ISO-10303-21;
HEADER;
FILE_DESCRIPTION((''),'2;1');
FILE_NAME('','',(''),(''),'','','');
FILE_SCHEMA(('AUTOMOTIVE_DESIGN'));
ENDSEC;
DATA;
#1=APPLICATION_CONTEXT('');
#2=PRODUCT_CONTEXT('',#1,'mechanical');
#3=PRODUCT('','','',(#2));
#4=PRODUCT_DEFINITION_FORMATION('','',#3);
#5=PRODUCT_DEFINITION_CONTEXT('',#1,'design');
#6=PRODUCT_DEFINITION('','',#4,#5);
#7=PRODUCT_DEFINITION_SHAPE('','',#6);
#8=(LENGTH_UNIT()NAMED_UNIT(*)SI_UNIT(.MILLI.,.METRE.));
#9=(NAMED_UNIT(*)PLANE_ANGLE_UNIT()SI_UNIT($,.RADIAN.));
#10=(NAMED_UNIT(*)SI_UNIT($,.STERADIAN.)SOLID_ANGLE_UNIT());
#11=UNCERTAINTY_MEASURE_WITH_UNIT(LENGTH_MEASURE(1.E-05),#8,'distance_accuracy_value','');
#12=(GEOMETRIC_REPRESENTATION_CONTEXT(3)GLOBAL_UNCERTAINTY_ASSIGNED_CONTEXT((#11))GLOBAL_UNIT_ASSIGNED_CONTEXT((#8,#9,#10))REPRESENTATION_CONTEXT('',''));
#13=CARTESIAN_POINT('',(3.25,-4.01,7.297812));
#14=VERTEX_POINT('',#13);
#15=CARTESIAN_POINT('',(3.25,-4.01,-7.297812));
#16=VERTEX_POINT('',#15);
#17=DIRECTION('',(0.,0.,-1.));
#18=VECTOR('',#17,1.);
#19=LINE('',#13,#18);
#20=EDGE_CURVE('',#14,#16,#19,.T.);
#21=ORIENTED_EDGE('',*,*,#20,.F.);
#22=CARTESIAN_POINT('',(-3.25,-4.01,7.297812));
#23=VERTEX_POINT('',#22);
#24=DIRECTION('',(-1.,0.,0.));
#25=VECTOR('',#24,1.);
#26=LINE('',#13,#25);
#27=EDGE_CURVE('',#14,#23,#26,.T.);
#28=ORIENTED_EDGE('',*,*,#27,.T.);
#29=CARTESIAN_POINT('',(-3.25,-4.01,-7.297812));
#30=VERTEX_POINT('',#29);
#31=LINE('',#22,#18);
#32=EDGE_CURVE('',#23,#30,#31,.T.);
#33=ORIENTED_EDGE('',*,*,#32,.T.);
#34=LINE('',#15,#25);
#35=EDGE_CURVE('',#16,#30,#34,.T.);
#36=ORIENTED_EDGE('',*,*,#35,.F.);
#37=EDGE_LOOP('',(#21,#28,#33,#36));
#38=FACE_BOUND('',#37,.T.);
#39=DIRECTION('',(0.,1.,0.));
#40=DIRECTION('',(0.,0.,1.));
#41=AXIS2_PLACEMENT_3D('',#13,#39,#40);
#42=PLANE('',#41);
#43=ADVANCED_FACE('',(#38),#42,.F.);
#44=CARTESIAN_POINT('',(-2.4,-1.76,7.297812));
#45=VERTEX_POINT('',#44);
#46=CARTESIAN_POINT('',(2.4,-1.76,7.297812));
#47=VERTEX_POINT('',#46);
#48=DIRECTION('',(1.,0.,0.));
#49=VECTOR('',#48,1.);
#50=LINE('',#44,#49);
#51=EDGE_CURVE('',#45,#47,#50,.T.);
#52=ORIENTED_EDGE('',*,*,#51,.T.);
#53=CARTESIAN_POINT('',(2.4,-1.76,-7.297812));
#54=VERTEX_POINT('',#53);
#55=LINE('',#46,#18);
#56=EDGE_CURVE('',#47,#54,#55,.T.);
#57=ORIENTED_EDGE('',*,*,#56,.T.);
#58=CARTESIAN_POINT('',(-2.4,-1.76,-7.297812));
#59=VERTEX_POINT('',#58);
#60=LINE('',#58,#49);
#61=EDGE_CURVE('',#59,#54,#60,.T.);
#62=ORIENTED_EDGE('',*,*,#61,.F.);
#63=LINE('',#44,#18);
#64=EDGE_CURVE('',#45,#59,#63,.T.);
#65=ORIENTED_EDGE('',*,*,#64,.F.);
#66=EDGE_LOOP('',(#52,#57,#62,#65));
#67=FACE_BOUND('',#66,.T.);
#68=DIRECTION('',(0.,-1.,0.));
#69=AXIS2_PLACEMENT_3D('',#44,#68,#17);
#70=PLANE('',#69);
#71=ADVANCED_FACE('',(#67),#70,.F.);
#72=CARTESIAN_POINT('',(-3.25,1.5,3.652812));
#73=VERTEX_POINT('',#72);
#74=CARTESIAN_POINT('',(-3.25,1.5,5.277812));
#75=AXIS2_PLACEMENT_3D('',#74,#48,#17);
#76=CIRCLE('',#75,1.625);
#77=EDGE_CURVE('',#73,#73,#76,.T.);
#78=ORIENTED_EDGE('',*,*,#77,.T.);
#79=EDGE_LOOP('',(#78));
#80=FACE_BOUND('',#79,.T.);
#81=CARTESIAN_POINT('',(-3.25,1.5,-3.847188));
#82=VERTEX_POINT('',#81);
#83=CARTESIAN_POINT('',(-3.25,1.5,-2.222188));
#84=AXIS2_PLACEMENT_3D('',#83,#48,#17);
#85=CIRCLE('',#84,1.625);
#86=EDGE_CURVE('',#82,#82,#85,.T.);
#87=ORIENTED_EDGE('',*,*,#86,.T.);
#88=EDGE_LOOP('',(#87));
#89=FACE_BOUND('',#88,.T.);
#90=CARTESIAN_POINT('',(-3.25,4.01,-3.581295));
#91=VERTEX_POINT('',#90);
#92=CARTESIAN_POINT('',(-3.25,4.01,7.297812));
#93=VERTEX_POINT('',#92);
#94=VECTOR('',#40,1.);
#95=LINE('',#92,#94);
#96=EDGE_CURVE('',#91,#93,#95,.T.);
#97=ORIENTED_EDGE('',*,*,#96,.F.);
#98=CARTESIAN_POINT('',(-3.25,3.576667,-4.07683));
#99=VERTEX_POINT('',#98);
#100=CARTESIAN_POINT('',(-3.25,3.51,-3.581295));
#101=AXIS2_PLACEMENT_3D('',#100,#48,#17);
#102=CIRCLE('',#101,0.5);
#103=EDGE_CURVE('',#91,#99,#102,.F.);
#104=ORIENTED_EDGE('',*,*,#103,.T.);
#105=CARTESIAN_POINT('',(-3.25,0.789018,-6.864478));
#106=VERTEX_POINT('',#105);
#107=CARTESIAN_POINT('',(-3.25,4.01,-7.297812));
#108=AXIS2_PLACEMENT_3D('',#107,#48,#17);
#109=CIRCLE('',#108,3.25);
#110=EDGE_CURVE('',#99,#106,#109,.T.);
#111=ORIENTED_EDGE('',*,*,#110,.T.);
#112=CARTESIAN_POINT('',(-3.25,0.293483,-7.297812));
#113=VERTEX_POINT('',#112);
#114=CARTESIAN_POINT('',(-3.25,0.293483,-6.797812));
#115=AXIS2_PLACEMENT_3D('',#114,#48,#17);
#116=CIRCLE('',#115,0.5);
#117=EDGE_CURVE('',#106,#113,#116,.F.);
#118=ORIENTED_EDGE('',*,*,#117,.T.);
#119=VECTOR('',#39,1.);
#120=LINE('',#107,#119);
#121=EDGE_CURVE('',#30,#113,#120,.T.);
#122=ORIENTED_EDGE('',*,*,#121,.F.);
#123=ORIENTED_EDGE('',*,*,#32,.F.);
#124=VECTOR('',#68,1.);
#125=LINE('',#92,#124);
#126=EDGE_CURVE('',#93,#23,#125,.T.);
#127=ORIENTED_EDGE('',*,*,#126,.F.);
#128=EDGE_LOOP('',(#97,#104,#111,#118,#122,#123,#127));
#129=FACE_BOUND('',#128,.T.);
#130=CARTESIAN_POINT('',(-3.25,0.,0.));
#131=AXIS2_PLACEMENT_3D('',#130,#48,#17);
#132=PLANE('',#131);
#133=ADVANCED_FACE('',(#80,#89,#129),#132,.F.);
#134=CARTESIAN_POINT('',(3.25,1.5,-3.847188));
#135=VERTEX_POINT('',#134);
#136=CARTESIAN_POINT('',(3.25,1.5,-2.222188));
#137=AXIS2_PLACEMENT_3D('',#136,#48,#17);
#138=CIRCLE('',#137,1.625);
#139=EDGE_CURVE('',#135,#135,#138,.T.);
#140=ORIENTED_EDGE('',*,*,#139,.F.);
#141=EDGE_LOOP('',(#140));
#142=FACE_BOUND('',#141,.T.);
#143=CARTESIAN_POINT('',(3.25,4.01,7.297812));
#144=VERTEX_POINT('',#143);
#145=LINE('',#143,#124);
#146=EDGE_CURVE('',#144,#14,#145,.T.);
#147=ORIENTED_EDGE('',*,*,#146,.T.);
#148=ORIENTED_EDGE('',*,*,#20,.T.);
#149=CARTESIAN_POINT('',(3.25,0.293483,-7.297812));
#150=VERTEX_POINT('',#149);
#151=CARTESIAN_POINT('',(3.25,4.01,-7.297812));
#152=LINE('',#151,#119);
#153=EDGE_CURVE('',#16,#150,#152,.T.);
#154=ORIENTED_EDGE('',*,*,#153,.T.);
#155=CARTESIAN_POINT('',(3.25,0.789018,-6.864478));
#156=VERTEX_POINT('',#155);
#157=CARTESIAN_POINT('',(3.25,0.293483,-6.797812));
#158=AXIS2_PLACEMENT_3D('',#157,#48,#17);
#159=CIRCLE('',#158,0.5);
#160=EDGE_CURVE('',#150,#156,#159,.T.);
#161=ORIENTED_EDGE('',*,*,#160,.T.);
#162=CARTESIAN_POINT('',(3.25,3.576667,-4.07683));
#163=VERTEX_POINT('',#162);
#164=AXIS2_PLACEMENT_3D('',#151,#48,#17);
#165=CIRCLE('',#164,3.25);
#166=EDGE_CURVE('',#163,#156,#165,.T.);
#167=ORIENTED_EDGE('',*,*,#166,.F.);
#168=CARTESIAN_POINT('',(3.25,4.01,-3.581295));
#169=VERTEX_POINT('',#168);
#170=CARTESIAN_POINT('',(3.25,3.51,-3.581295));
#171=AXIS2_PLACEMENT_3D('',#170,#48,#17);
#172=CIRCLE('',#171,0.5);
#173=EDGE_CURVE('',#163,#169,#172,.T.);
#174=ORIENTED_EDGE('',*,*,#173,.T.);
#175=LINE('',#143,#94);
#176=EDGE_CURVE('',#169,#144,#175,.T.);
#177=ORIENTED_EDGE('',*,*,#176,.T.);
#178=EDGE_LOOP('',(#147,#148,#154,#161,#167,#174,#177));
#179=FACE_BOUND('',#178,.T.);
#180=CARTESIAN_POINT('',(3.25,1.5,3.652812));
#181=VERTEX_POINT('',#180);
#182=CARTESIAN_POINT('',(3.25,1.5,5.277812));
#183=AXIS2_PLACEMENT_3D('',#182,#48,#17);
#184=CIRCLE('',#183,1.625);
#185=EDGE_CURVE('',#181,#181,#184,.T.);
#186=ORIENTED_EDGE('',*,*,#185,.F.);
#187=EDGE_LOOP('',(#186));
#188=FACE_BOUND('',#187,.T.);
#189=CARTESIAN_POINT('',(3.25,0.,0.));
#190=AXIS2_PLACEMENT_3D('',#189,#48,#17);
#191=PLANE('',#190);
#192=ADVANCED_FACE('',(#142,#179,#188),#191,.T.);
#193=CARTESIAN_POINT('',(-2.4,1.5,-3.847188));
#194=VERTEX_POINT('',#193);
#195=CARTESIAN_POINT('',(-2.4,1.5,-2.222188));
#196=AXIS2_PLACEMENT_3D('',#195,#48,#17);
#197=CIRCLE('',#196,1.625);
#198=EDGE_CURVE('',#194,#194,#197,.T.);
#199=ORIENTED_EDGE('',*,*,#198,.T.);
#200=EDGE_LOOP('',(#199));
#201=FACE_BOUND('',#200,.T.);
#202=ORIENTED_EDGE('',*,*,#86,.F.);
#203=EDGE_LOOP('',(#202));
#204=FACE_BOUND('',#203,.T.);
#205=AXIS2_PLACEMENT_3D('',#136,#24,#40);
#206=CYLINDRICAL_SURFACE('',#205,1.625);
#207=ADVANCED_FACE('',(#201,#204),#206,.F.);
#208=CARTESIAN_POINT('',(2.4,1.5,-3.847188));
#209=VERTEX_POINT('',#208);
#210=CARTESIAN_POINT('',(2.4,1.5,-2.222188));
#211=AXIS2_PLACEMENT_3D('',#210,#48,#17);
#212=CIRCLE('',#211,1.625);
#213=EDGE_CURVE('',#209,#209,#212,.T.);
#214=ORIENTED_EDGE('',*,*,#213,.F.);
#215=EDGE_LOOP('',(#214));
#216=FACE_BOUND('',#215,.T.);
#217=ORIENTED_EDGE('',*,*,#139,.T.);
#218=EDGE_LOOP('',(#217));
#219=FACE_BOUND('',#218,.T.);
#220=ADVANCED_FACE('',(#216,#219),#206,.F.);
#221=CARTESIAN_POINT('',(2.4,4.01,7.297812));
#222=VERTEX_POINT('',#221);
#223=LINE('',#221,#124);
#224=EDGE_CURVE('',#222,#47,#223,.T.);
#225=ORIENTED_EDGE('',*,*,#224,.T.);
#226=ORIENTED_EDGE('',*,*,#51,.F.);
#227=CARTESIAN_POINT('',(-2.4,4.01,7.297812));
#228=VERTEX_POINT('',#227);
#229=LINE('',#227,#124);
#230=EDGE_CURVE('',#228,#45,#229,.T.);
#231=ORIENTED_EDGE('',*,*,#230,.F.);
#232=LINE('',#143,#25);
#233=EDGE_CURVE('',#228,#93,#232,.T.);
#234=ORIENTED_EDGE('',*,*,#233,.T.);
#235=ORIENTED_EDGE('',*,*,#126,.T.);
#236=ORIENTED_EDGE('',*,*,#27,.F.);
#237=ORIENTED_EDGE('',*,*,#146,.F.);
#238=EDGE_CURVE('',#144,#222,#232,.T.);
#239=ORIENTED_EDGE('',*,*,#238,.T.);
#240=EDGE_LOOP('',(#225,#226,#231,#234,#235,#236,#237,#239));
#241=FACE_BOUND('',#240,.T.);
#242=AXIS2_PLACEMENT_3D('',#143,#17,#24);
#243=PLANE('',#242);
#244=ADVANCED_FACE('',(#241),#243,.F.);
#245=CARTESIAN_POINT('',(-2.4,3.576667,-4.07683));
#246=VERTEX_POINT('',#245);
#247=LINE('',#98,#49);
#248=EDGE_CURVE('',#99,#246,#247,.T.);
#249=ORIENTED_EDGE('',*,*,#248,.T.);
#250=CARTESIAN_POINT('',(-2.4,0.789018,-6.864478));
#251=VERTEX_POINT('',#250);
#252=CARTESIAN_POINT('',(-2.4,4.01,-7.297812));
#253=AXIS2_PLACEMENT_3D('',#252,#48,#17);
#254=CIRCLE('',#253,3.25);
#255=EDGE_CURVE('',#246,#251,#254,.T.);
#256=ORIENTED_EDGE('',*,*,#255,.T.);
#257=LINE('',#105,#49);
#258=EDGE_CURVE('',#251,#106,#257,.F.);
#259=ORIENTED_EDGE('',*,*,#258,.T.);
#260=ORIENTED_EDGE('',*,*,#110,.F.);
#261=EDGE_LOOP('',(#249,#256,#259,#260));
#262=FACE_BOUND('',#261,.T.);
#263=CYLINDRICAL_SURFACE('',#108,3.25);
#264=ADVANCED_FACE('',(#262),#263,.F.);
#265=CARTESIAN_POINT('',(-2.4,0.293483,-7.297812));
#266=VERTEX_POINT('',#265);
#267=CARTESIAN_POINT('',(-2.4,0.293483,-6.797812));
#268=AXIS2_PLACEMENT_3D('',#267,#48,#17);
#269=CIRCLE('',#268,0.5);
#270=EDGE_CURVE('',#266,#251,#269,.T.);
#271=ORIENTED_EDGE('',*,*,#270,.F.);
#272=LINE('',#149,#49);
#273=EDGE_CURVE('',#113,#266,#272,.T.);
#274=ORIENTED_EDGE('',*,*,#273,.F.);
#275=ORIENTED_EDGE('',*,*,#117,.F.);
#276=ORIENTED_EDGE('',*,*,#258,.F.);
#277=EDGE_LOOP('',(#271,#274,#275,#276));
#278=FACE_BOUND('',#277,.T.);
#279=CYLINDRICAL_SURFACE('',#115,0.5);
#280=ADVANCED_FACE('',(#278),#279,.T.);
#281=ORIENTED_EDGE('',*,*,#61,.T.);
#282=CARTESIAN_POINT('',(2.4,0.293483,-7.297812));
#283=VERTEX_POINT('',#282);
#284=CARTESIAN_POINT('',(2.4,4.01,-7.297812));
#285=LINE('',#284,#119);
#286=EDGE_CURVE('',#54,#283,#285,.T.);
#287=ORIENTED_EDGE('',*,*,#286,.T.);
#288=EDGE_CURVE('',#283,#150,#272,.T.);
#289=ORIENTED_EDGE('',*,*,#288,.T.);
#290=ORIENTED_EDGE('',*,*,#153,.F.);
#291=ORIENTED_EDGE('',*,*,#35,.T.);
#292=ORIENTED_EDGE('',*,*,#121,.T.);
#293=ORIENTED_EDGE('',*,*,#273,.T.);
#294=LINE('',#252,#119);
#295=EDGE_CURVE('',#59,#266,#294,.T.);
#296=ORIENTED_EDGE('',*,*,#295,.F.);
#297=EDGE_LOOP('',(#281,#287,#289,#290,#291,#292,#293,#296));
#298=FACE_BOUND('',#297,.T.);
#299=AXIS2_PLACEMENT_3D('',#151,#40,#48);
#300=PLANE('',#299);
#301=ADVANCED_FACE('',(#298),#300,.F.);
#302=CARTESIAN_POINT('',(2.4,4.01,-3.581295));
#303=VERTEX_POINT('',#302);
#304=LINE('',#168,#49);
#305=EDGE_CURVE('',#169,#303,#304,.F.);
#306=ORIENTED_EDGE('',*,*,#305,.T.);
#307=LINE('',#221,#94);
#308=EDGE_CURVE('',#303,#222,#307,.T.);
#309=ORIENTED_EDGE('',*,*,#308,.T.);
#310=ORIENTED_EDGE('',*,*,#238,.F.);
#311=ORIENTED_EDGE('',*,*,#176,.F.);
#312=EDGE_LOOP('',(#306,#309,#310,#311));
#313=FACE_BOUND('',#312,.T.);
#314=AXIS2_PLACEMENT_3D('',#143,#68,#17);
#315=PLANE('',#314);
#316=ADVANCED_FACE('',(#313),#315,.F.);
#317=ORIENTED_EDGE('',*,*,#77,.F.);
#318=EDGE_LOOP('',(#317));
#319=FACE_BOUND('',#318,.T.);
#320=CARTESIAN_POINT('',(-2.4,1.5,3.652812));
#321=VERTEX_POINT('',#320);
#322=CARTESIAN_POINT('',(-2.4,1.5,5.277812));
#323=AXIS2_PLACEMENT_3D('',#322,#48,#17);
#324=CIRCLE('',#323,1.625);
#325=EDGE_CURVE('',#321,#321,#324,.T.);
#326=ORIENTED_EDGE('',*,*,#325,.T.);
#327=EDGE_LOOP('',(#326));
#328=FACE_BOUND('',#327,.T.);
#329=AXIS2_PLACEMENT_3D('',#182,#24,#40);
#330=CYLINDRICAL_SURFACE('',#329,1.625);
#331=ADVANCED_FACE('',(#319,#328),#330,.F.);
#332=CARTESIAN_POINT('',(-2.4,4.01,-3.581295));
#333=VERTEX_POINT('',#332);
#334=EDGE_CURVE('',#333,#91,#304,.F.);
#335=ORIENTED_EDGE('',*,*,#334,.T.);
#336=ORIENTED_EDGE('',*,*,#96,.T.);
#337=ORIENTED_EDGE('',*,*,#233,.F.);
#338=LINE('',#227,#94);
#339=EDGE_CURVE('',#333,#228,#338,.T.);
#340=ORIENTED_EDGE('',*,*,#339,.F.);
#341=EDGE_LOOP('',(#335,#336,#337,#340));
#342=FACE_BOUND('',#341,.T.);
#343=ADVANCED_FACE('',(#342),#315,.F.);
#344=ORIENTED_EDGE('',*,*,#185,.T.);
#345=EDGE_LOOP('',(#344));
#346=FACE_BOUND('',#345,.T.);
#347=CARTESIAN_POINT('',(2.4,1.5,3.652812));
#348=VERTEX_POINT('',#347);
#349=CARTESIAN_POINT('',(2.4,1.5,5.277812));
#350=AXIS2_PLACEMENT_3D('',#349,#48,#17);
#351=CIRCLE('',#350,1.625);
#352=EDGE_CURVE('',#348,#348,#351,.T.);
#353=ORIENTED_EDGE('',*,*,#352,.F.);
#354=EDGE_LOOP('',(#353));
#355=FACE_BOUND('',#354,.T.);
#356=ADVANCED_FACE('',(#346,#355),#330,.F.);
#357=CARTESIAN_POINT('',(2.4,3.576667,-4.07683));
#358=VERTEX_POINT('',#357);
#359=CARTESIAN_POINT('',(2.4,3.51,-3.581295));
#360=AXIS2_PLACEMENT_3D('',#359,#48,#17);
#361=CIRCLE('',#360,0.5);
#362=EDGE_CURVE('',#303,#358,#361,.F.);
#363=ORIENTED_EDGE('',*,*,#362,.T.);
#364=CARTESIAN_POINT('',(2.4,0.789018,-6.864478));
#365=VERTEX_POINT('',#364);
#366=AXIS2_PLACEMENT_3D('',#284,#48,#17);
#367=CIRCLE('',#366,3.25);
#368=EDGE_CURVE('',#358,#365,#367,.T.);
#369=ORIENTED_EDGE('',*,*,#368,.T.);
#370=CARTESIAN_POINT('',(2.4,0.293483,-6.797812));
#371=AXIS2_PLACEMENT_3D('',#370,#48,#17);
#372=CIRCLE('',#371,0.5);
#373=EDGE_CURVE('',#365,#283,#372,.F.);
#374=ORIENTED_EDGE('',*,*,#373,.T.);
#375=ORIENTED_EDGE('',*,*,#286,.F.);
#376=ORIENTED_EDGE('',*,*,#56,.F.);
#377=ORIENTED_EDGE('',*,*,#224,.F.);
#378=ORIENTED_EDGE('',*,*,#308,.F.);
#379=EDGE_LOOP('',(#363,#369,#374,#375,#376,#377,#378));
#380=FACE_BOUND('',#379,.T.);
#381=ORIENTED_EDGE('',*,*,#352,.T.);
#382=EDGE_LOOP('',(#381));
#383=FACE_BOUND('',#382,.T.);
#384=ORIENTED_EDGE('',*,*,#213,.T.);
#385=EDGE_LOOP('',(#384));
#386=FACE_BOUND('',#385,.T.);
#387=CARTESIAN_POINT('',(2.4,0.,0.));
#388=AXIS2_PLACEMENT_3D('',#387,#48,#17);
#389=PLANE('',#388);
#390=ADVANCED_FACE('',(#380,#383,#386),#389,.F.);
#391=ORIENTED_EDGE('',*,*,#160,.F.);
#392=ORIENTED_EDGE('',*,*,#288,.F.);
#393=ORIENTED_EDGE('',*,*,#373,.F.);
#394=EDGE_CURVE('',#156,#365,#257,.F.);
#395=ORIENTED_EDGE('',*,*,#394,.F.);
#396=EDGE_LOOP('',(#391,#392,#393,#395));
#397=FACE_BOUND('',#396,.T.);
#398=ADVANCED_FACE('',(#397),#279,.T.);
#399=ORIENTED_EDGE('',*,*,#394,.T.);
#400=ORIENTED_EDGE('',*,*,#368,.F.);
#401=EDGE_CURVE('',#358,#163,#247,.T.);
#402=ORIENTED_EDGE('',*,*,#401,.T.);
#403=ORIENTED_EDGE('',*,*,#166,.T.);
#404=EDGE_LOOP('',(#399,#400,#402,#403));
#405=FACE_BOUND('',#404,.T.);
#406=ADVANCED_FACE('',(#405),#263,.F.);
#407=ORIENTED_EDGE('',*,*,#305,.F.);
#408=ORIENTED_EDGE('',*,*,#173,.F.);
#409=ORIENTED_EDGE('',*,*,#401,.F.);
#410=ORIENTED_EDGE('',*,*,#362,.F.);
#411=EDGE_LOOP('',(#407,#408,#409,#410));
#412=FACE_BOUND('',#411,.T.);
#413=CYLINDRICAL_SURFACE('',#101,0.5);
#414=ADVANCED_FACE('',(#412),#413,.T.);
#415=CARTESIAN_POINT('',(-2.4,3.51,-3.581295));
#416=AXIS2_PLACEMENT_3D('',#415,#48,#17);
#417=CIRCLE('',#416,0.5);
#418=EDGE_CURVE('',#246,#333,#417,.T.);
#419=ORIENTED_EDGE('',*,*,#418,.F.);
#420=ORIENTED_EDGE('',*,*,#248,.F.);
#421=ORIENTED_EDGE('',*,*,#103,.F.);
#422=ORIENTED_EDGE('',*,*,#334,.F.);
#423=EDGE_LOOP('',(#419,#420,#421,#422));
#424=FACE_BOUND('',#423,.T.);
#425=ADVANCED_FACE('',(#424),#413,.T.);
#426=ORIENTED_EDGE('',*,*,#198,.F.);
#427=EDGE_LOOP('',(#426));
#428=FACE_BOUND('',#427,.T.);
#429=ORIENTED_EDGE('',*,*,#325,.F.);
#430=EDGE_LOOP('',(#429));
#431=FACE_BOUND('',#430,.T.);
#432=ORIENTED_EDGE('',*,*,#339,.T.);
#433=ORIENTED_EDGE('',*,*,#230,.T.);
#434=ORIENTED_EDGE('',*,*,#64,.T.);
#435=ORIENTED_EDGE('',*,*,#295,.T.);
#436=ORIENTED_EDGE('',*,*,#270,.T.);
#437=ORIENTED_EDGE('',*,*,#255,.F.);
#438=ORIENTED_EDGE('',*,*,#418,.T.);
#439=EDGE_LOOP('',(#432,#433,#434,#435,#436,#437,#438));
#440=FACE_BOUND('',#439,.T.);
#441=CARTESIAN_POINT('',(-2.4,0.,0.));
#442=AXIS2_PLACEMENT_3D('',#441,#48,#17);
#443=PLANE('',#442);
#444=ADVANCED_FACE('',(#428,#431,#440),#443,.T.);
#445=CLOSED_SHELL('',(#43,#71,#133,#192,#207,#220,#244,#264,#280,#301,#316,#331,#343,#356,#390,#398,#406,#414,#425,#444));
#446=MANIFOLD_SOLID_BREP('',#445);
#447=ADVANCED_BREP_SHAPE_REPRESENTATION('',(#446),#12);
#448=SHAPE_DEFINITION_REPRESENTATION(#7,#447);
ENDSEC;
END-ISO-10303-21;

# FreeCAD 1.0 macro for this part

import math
import FreeCAD as App
import Part
import Sketcher


def edges_at(feature, points):
    """Names of the edges that pass closest to the given points."""
    edges = feature.Shape.Edges
    near = lambda p: min(range(len(edges)), key=lambda i: edges[i].distToShape(Part.Vertex(*p))[0])
    return sorted({f"Edge{near(p) + 1}" for p in points})


def add_polygon(sketch, points):
    """Adds a closed chain of lines whose ends are joined by coincident constraints."""
    first, n = sketch.GeometryCount, len(points)
    for a, b in zip(points, points[1:] + points[:1]):
        sketch.addGeometry(Part.LineSegment(App.Vector(*a, 0), App.Vector(*b, 0)), False)
    for i in range(n):
        sketch.addConstraint(Sketcher.Constraint("Coincident", first + i, 2, first + (i + 1) % n, 1))

doc = App.newDocument("Part")
body = doc.addObject("PartDesign::Body", "Body")

# Sketch on YZ plane
sketch1 = body.newObject("Sketcher::SketchObject", "Sketch")
sketch1.AttachmentSupport = (doc.getObject("YZ_Plane"), [""])
sketch1.MapMode = "FlatFace"
add_polygon(sketch1, [(4, 7.3), (-4, 7.3), (-4, -7.3), (4, -7.3)])  # lines 0-3
sketch1.addGeometry(Part.Circle(App.Vector(1.5, 5.3, 0), App.Vector(0, 0, 1), 1.6), False)  # 4
sketch1.addGeometry(Part.Circle(App.Vector(1.5, -2.2, 0), App.Vector(0, 0, 1), 1.6), False)  # 5
sketch1.addConstraint([
    Sketcher.Constraint("Horizontal", 0),
    Sketcher.Constraint("Vertical", 1),
    Sketcher.Constraint("Horizontal", 2),
    Sketcher.Constraint("Vertical", 3),
    Sketcher.Constraint("Equal", 4, 5),
    Sketcher.Constraint("Symmetric", 0, 2, 2, 2, -1, 1),
    Sketcher.Constraint("Vertical", 4, 3, 5, 3),
    Sketcher.Constraint("Diameter", 4, 3.25),
    Sketcher.Constraint("DistanceX", 0, 2, 0, 1, 8.02),
    Sketcher.Constraint("DistanceX", -1, 1, 4, 3, 1.5),
    Sketcher.Constraint("DistanceY", 5, 3, 4, 3, 7.5),
    Sketcher.Constraint("DistanceY", 4, 3, 0, 2, 2.02),
    Sketcher.Constraint("DistanceY", 1, 2, 1, 1, 14.595623),
])
pad1 = body.newObject("PartDesign::Pad", "Pad")
pad1.Profile = sketch1
pad1.Length = 6.5
pad1.Midplane = True

# Sketch on YZ plane
sketch2 = body.newObject("Sketcher::SketchObject", "Sketch001")
sketch2.AttachmentSupport = (doc.getObject("YZ_Plane"), [""])
sketch2.MapMode = "FlatFace"
add_polygon(sketch2, [(4, 7), (-2, 7), (-2, -7), (4, -7)])  # lines 0-3
sketch2.addConstraint([
    Sketcher.Constraint("Horizontal", 0),
    Sketcher.Constraint("Vertical", 1),
    Sketcher.Constraint("Horizontal", 2),
    Sketcher.Constraint("Vertical", 3),
    Sketcher.Constraint("DistanceX", 0, 2, 0, 1, 5.77),
    Sketcher.Constraint("DistanceX", 0, 2, -1, 1, 1.76),
    Sketcher.Constraint("DistanceY", 1, 2, 1, 1, 14.595623),
    Sketcher.Constraint("DistanceY", -1, 1, 0, 2, 7.297812),
])
pocket1 = body.newObject("PartDesign::Pocket", "Pocket")
pocket1.Profile = sketch2
pocket1.Length = 4.8
pocket1.Midplane = True

# Sketch on YZ plane
sketch3 = body.newObject("Sketcher::SketchObject", "Sketch002")
sketch3.AttachmentSupport = (doc.getObject("YZ_Plane"), [""])
sketch3.MapMode = "FlatFace"
sketch3.addGeometry([
    Part.LineSegment(App.Vector(4, -7.3, 0), App.Vector(4, -4, 0)),
    Part.ArcOfCircle(Part.Circle(App.Vector(4, -7.3, 0), App.Vector(0, 0, 1), 3.2), math.radians(90), math.radians(180)),
    Part.LineSegment(App.Vector(0.8, -7.3, 0), App.Vector(4, -7.3, 0)),
], False)
sketch3.addConstraint([
    Sketcher.Constraint("Coincident", 0, 2, 1, 1),
    Sketcher.Constraint("Coincident", 1, 2, 2, 1),
    Sketcher.Constraint("Coincident", 2, 2, 0, 1),
    Sketcher.Constraint("Vertical", 0),
    Sketcher.Constraint("Horizontal", 2),
    Sketcher.Constraint("Coincident", 2, 2, 1, 3),
    Sketcher.Constraint("Radius", 1, 3.25),
    Sketcher.Constraint("DistanceX", -1, 1, 1, 3, 4.01),
    Sketcher.Constraint("DistanceY", 1, 3, -1, 1, 7.297812),
])
pocket2 = body.newObject("PartDesign::Pocket", "Pocket001")
pocket2.Profile = sketch3
pocket2.Type = "ThroughAll"
pocket2.Midplane = True
doc.recompute()

fillet = body.newObject("PartDesign::Fillet", "Fillet")
fillet.Base = (pocket2, edges_at(pocket2, [
    (2.825, 0.76, -7.298),
    (2.825, 4.01, -4.048),
    (-2.825, 0.76, -7.298),
    (-2.825, 4.01, -4.048),
]))
fillet.Radius = 0.5

doc.recompute()
